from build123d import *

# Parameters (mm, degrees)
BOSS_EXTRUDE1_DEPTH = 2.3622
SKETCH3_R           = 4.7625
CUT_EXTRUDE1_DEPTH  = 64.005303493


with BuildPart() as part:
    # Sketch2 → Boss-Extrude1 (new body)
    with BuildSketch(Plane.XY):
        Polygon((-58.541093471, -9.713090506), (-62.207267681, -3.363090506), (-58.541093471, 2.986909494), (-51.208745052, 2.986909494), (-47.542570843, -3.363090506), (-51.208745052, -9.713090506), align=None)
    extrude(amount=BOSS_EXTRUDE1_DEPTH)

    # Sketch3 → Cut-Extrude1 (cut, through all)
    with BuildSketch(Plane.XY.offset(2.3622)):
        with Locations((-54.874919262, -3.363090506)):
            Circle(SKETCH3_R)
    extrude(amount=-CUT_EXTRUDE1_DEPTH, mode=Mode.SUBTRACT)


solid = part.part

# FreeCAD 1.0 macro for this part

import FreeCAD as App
import Part
import Sketcher
from FreeCAD import Vector
Q = App.Units.Quantity


def add_polygon(sketch, points):
    """Adds a closed chain of lines whose ends are joined by coincident constraints."""
    first, n = sketch.GeometryCount, len(points)
    for a, b in zip(points, points[1:] + points[:1]):
        sketch.addGeometry(Part.LineSegment(App.Vector(*a, 0), App.Vector(*b, 0)), False)
    for i in range(n):
        sketch.addConstraint(Sketcher.Constraint("Coincident", first + i, 2, first + (i + 1) % n, 1))

doc = App.newDocument("Part")
params = doc.addObject("Spreadsheet::Sheet", "Params")
for row, (alias, value) in enumerate([
    ("pad1_length", "0.093 in"),
    ("sketch2_diameter", "0.375 in"),
], start=1):
    params.set(f"A{row}", alias)
    params.set(f"B{row}", "=" + value)
    params.setAlias(f"B{row}", alias)

body = doc.addObject("PartDesign::Body", "Body")

sketch1 = body.newObject("Sketcher::SketchObject", "Sketch")
sketch1.AttachmentSupport = (doc.getObject("XY_Plane"), [""])
sketch1.MapMode = "FlatFace"
add_polygon(sketch1, [(-62, -3), (-59, -10), (-51, -10), (-48, -3), (-51, 3), (-59, 3)])
sketch1.addConstraint([
    Sketcher.Constraint("Horizontal", 1),
    Sketcher.Constraint("Horizontal", 4),
    Sketcher.Constraint("Parallel", 0, 3),
    Sketcher.Constraint("Parallel", 2, 5),
    Sketcher.Constraint("Horizontal", 2, 2, 5, 2),
    Sketcher.Constraint("Vertical", 1, 2, 3, 2),
    Sketcher.Constraint("Vertical", 0, 2, 4, 2),
    Sketcher.Constraint("Angle", 0, Q("-60 deg")),
    Sketcher.Constraint("DistanceY", 1, 2, 3, 2, Q("0.5 in")),
    Sketcher.Constraint("DistanceX", 1, 1, 1, 2, 7.332348),
    Sketcher.Constraint("DistanceY", 0, 2, -1, 1, 9.713091),
    Sketcher.Constraint("DistanceX", 2, 2, -1, 1, 47.542571),
])
pad1 = body.newObject("PartDesign::Pad", "Pad")
pad1.Profile = sketch1
pad1.setExpression("Length", "Params.pad1_length")

sketch2 = body.newObject("Sketcher::SketchObject", "Sketch001")
sketch2.AttachmentSupport = (doc.getObject("XY_Plane"), [""])
sketch2.MapMode = "FlatFace"
sketch2.AttachmentOffset = App.Placement(Vector(0, 0, 0.093 * 25.4), App.Rotation())
sketch2.addGeometry(Part.Circle(Vector(-54.9, -3.4, 0), Vector(0, 0, 1), 4.8), False)
sketch2.addConstraint([
    Sketcher.Constraint("Diameter", 0, Q("0.375 in")),
    Sketcher.Constraint("DistanceX", 0, 3, -1, 1, 54.874919),
    Sketcher.Constraint("DistanceY", 0, 3, -1, 1, 3.363091),
])
sketch2.setExpression("Constraints[0]", "Params.sketch2_diameter")
pocket1 = body.newObject("PartDesign::Pocket", "Pocket")
pocket1.Profile = sketch2
pocket1.Type = "ThroughAll"

doc.recompute()
